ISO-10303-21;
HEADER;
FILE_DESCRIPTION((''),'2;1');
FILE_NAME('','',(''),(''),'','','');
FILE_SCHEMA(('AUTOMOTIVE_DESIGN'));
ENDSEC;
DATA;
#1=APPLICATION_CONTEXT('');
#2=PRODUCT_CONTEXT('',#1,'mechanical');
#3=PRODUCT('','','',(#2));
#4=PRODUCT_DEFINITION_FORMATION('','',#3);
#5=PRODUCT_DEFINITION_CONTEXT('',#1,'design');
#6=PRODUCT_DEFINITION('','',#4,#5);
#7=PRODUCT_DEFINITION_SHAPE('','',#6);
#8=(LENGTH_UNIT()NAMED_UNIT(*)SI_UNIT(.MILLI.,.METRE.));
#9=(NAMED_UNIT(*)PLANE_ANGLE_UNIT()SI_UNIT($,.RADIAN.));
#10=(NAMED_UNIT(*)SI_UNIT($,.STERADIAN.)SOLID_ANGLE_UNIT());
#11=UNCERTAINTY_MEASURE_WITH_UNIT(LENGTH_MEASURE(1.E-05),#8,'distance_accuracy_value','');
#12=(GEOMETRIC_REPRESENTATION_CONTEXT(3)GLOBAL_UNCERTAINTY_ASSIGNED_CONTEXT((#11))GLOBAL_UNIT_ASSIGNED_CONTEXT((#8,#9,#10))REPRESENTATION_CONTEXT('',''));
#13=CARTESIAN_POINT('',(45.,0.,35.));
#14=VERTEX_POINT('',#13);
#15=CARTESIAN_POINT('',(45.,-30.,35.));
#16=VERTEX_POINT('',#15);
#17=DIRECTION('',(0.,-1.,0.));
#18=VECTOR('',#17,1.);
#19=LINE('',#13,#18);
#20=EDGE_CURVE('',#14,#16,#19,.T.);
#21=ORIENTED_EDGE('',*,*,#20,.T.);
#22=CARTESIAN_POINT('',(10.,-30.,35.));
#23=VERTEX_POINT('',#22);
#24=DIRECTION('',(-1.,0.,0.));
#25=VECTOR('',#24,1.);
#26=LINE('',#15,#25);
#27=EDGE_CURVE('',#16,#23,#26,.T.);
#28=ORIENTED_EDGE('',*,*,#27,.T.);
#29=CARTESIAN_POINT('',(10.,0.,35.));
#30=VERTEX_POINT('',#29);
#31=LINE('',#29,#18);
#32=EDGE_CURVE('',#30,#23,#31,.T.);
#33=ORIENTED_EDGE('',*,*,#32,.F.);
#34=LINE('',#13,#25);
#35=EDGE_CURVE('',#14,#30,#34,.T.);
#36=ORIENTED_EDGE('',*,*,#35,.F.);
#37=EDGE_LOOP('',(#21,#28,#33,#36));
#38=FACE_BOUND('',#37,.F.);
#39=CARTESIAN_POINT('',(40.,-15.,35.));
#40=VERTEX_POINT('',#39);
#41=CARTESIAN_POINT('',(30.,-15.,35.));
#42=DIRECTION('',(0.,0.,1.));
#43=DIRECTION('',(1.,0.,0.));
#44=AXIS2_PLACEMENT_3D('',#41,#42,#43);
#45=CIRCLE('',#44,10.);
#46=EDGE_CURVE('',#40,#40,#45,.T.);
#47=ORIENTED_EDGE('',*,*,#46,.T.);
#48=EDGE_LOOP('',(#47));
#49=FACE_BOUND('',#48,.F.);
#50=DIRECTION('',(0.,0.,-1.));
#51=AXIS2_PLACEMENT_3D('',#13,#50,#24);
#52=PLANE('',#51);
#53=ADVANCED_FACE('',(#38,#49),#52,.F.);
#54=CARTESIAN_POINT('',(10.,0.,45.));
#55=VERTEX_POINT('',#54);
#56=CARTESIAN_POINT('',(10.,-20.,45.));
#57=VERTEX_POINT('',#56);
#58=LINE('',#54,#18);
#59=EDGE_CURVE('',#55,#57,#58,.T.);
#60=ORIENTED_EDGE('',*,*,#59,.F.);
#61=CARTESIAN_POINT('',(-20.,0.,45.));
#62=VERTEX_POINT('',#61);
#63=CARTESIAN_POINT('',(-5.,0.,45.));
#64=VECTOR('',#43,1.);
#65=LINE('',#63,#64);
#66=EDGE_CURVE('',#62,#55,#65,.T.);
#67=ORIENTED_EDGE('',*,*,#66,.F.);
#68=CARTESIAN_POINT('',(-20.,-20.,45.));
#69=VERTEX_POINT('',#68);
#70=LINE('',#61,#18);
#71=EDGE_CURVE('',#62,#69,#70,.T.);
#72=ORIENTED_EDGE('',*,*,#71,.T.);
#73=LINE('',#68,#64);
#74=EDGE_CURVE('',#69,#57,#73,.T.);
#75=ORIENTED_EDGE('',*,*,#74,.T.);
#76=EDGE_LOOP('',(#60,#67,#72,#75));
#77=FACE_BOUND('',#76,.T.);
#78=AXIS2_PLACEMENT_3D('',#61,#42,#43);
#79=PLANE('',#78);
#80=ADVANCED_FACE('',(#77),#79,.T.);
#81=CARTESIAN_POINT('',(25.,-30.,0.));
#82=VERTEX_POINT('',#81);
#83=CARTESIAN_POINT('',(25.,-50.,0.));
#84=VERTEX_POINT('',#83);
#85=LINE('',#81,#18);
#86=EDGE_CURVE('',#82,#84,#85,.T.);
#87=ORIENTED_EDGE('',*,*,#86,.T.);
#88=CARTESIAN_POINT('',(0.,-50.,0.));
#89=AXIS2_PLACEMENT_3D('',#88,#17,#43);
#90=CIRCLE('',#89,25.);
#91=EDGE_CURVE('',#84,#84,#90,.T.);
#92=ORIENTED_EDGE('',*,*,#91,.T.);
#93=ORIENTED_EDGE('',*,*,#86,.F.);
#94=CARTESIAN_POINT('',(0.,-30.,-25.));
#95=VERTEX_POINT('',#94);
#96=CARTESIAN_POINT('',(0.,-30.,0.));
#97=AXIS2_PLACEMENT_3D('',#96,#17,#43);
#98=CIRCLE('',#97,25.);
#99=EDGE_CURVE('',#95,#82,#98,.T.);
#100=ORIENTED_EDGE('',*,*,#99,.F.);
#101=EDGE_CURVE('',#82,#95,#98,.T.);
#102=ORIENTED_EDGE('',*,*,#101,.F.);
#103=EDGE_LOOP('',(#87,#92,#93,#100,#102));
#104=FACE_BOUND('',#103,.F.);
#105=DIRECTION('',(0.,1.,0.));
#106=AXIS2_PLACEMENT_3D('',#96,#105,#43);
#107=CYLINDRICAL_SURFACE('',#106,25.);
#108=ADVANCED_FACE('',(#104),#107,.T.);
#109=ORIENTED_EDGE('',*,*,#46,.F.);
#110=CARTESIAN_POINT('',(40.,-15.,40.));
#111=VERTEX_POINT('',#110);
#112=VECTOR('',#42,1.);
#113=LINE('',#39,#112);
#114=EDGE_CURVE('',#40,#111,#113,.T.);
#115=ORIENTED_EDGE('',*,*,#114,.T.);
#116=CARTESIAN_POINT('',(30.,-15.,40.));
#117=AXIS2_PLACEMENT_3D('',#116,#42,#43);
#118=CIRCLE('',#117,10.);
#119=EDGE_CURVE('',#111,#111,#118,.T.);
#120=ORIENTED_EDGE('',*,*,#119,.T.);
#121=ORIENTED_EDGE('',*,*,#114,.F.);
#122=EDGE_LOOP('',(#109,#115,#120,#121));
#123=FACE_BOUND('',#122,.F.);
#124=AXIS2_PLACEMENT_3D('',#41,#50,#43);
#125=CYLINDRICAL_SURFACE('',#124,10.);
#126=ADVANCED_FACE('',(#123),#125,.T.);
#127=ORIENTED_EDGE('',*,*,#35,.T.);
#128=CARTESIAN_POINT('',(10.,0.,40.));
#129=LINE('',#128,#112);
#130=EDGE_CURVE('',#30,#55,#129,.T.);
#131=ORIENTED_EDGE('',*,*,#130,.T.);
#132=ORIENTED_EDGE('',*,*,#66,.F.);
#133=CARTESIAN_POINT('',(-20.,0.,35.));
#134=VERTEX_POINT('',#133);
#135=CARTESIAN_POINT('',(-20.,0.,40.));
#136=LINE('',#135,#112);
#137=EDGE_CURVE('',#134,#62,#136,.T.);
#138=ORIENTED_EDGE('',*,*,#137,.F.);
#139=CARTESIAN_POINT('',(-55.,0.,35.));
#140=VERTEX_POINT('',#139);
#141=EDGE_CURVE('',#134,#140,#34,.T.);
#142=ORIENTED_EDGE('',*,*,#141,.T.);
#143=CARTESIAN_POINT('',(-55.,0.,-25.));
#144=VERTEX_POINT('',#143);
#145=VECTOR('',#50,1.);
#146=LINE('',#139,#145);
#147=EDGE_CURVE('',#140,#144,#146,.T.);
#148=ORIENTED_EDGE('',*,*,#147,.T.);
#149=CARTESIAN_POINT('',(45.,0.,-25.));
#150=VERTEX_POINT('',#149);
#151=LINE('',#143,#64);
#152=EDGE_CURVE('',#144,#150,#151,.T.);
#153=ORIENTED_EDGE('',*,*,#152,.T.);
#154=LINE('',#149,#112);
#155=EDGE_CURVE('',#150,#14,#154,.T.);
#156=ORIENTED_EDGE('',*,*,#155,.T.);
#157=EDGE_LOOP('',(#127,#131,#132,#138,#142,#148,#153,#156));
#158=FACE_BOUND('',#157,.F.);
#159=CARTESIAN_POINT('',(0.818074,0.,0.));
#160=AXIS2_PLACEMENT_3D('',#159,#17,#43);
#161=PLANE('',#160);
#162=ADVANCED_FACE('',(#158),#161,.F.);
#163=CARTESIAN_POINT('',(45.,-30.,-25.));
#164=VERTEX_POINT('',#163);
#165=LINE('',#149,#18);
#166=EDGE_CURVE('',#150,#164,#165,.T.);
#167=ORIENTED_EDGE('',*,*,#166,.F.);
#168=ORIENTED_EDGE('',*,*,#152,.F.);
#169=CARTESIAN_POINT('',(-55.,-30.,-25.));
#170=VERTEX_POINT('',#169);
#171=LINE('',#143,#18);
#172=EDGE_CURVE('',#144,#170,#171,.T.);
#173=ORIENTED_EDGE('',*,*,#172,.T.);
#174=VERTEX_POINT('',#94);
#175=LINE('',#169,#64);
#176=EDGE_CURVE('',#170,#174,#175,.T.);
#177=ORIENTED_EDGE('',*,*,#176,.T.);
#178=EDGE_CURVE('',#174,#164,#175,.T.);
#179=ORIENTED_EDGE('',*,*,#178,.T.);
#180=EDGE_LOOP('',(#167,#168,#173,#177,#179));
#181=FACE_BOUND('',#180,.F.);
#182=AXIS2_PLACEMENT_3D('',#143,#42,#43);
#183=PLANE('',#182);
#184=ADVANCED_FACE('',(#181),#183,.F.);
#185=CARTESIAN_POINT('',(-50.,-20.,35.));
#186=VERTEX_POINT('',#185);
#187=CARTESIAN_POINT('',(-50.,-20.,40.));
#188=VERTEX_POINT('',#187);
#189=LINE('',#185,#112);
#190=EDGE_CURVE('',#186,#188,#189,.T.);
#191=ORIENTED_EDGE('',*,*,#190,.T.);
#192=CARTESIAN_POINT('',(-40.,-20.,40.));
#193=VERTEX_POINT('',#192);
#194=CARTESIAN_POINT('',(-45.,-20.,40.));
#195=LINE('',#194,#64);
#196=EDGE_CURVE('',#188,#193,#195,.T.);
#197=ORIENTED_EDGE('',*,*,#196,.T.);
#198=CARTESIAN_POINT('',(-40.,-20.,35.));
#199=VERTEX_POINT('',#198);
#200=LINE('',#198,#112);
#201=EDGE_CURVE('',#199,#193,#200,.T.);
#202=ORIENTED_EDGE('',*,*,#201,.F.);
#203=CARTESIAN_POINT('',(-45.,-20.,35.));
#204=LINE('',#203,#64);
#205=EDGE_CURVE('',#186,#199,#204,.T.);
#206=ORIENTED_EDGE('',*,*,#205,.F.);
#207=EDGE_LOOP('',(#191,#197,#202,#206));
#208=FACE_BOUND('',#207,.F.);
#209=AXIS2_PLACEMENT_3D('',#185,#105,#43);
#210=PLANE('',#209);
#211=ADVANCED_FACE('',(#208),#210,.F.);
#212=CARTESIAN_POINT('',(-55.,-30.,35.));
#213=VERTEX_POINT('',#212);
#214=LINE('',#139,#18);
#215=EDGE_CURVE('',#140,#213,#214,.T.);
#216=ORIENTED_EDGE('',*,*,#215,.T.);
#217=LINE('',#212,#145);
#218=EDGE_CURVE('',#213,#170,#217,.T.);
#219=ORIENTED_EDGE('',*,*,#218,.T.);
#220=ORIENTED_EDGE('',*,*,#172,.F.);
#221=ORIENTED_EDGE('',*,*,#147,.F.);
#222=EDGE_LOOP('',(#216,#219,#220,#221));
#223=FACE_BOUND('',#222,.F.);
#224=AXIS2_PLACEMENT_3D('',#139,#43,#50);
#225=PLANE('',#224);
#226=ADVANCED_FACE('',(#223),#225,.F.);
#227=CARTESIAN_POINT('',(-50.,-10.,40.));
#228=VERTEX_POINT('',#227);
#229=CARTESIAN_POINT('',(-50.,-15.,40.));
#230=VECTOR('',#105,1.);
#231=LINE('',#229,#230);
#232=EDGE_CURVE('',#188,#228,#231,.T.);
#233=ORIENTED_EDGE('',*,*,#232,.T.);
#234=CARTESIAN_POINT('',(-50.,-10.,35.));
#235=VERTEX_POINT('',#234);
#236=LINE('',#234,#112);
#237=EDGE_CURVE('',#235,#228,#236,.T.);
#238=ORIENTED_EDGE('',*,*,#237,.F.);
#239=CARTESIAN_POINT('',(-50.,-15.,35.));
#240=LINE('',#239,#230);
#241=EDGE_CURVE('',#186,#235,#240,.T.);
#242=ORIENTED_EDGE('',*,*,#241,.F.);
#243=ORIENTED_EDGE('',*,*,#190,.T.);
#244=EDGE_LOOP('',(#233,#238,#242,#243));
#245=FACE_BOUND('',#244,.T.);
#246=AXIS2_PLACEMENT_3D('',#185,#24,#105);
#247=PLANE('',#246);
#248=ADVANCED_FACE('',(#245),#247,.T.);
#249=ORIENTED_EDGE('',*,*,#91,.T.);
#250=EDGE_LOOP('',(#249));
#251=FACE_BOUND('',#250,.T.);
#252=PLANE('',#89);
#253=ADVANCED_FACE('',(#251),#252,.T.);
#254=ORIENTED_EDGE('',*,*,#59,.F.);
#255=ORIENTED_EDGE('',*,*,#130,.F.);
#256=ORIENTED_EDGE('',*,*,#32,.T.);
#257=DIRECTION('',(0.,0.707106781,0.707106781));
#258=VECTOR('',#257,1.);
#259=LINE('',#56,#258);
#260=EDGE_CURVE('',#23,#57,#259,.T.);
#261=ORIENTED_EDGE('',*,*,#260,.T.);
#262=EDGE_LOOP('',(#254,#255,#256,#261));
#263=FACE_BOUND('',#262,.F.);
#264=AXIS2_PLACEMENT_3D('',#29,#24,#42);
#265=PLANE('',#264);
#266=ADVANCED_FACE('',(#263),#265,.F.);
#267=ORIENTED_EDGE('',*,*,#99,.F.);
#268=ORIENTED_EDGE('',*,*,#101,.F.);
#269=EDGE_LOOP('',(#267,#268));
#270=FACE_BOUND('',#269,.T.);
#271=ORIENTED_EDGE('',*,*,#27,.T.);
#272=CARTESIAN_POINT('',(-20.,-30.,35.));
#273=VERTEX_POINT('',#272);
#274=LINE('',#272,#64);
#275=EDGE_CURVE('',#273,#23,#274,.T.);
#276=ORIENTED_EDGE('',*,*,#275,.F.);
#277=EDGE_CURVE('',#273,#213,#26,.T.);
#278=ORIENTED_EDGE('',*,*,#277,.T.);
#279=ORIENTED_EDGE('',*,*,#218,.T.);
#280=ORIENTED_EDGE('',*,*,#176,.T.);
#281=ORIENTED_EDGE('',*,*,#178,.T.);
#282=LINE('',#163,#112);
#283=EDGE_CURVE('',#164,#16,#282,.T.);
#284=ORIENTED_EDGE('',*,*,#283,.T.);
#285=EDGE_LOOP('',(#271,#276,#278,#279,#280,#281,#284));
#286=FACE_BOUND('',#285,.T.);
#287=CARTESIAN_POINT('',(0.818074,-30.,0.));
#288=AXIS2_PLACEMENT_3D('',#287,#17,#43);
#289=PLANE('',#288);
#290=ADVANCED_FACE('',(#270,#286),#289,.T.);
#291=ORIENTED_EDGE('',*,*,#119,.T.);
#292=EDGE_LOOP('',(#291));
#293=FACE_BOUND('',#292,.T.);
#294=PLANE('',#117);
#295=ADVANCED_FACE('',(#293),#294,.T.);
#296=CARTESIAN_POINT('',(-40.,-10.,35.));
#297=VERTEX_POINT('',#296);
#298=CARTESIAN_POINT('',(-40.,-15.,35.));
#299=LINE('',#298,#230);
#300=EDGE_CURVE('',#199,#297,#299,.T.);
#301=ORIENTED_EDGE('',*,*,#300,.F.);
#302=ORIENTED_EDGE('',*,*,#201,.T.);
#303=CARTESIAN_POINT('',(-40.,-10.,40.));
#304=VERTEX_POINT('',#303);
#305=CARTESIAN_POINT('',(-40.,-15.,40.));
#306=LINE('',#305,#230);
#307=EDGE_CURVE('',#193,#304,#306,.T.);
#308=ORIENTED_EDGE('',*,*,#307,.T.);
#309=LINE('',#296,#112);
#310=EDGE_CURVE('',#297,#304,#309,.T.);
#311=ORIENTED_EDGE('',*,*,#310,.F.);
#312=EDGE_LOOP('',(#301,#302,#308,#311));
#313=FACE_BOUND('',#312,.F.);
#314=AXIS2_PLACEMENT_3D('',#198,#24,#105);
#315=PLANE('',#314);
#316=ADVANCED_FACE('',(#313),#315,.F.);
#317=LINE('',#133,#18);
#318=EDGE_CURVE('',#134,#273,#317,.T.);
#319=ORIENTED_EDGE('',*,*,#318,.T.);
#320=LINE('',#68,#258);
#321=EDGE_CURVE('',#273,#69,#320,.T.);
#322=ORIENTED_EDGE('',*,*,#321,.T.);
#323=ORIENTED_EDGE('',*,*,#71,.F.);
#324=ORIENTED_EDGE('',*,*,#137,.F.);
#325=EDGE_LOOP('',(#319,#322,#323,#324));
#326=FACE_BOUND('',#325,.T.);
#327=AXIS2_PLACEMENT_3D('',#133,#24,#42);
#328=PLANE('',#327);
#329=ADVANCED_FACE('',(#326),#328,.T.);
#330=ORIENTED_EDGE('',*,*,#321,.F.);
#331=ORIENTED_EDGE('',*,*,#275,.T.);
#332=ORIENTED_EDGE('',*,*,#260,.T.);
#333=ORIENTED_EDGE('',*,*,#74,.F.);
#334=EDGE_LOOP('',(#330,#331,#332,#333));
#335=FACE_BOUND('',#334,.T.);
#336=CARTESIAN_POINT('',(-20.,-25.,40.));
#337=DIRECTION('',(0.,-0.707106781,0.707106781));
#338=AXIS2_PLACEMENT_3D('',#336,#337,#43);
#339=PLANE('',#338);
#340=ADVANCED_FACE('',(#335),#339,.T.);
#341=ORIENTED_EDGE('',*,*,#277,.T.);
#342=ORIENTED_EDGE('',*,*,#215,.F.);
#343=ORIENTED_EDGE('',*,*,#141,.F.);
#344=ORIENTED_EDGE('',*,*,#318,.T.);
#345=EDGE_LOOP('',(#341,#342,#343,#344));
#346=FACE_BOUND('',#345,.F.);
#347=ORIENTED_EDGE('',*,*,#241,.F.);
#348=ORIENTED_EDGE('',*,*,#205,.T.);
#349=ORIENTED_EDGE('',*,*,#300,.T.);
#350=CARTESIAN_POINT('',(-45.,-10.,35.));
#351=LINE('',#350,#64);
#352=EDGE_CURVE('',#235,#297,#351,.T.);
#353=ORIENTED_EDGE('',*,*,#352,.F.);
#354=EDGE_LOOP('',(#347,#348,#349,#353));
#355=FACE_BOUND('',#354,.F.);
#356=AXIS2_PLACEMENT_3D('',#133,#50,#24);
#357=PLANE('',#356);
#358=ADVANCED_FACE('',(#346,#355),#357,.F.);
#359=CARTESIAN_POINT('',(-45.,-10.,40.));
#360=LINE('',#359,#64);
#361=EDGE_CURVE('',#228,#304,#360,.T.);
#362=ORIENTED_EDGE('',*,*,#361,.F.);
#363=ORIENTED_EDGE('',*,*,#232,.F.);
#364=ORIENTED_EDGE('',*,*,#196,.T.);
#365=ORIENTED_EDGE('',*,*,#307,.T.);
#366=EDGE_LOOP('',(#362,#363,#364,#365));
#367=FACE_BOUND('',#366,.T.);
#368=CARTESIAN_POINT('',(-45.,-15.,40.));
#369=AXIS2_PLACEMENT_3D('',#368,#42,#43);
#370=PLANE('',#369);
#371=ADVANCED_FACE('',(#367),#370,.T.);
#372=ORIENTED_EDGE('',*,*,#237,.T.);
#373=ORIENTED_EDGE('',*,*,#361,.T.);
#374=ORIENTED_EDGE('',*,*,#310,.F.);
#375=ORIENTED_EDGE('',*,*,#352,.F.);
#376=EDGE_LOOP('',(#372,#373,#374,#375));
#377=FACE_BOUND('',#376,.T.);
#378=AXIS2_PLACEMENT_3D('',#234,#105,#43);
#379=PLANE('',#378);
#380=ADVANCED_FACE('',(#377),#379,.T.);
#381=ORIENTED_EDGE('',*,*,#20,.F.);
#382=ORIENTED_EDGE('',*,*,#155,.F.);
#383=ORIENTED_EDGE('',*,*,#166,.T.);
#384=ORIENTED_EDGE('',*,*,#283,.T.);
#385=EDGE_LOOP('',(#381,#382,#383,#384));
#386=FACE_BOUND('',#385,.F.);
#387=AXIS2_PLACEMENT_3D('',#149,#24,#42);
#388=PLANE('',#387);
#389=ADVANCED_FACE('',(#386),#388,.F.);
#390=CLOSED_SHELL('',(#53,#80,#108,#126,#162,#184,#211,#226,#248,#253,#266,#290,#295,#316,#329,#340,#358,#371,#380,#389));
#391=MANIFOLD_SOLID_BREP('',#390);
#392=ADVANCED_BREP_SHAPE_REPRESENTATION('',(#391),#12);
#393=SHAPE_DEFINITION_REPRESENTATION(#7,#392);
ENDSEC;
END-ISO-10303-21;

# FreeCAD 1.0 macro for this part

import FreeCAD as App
import Part
import Sketcher
from FreeCAD import Vector
Q = App.Units.Quantity


def edges_at(feature, points):
    """Names of the edges that pass closest to the given points."""
    edges = feature.Shape.Edges
    near = lambda p: min(range(len(edges)), key=lambda i: edges[i].distToShape(Part.Vertex(*p))[0])
    return sorted({f"Edge{near(p) + 1}" for p in points})

doc = App.newDocument("Part")
body = doc.addObject("PartDesign::Body", "Body")

# Sketch on XZ plane
sketch1 = body.newObject("Sketcher::SketchObject", "Sketch")
sketch1.AttachmentSupport = (doc.getObject("XZ_Plane"), [""])
sketch1.MapMode = "FlatFace"
sketch1.addGeometry([
    Part.LineSegment(Vector(45, -25, 0), Vector(45, 35, 0)),  # 0
    Part.LineSegment(Vector(45, 35, 0), Vector(10, 35, 0)),  # 1
    Part.LineSegment(Vector(10, 35, 0), Vector(10, 45, 0)),  # 2
    Part.LineSegment(Vector(10, 45, 0), Vector(-20, 45, 0)),  # 3
    Part.LineSegment(Vector(-20, 45, 0), Vector(-20, 35, 0)),  # 4
    Part.LineSegment(Vector(-20, 35, 0), Vector(-55, 35, 0)),  # 5
    Part.LineSegment(Vector(-55, 35, 0), Vector(-55, -25, 0)),  # 6
    Part.LineSegment(Vector(-55, -25, 0), Vector(45, -25, 0)),  # 7
], False)
sketch1.addConstraint([
    Sketcher.Constraint("Coincident", 0, 2, 1, 1),
    Sketcher.Constraint("Coincident", 1, 2, 2, 1),
    Sketcher.Constraint("Coincident", 2, 2, 3, 1),
    Sketcher.Constraint("Coincident", 3, 2, 4, 1),
    Sketcher.Constraint("Coincident", 4, 2, 5, 1),
    Sketcher.Constraint("Coincident", 5, 2, 6, 1),
    Sketcher.Constraint("Coincident", 6, 2, 7, 1),
    Sketcher.Constraint("Coincident", 7, 2, 0, 1),
    Sketcher.Constraint("Vertical", 0),
    Sketcher.Constraint("Horizontal", 1),
    Sketcher.Constraint("Vertical", 2),
    Sketcher.Constraint("Horizontal", 3),
    Sketcher.Constraint("Vertical", 4),
    Sketcher.Constraint("Horizontal", 5),
    Sketcher.Constraint("Vertical", 6),
    Sketcher.Constraint("Horizontal", 7),
    Sketcher.Constraint("Horizontal", 1, 2, 4, 2),
    Sketcher.Constraint("Equal", 1, 5),
    Sketcher.Constraint("DistanceX", 1, 2, 1, 1, Q("35 mm")),
    Sketcher.Constraint("DistanceX", 3, 2, 3, 1, Q("30 mm")),
    Sketcher.Constraint("DistanceY", 0, 1, 0, 2, Q("60 mm")),
    Sketcher.Constraint("DistanceY", 2, 1, 2, 2, Q("10 mm")),
    Sketcher.Constraint("DistanceX", -1, 1, 0, 2, Q("45 mm")),
    Sketcher.Constraint("DistanceY", -1, 1, 0, 2, Q("35 mm")),
])
pad1 = body.newObject("PartDesign::Pad", "Pad")
pad1.Profile = sketch1
pad1.Length = 30

# Sketch on XZ plane
sketch2 = body.newObject("Sketcher::SketchObject", "Sketch001")
sketch2.AttachmentSupport = (doc.getObject("XZ_Plane"), [""])
sketch2.MapMode = "FlatFace"
sketch2.AttachmentOffset = App.Placement(Vector(0, 0, 30), App.Rotation())
sketch2.addGeometry(Part.Circle(Vector(0, 0, 0), Vector(0, 0, 1), 25), False)
sketch2.addConstraint([
    Sketcher.Constraint("Coincident", 0, 3, -1, 1),
    Sketcher.Constraint("Diameter", 0, Q("50 mm")),
])
pad2 = body.newObject("PartDesign::Pad", "Pad001")
pad2.Profile = sketch2
pad2.Length = 20

# Sketch on XY plane
sketch3 = body.newObject("Sketcher::SketchObject", "Sketch002")
sketch3.AttachmentSupport = (doc.getObject("XY_Plane"), [""])
sketch3.MapMode = "FlatFace"
sketch3.AttachmentOffset = App.Placement(Vector(0, 0, 35), App.Rotation())
sketch3.addGeometry([
    Part.LineSegment(Vector(-50, -10, 0), Vector(-50, -20, 0)),  # 0
    Part.LineSegment(Vector(-50, -20, 0), Vector(-40, -20, 0)),  # 1
    Part.LineSegment(Vector(-40, -20, 0), Vector(-40, -10, 0)),  # 2
    Part.LineSegment(Vector(-40, -10, 0), Vector(-50, -10, 0)),  # 3
    Part.Circle(Vector(30, -15, 0), Vector(0, 0, 1), 10),  # 4
], False)
sketch3.addConstraint([
    Sketcher.Constraint("Coincident", 0, 2, 1, 1),
    Sketcher.Constraint("Coincident", 1, 2, 2, 1),
    Sketcher.Constraint("Coincident", 2, 2, 3, 1),
    Sketcher.Constraint("Coincident", 3, 2, 0, 1),
    Sketcher.Constraint("Vertical", 0),
    Sketcher.Constraint("Horizontal", 1),
    Sketcher.Constraint("Vertical", 2),
    Sketcher.Constraint("Horizontal", 3),
    Sketcher.Constraint("Equal", 3, 0),
    Sketcher.Constraint("Diameter", 4, Q("20 mm")),
    Sketcher.Constraint("DistanceX", 1, 1, 1, 2, Q("10 mm")),
    Sketcher.Constraint("DistanceX", -1, 1, 4, 3, Q("30 mm")),
    Sketcher.Constraint("DistanceY", 4, 3, -1, 1, Q("15 mm")),
    Sketcher.Constraint("DistanceX", 0, 2, -1, 1, Q("50 mm")),
    Sketcher.Constraint("DistanceY", 0, 2, -1, 1, Q("20 mm")),
])
pad3 = body.newObject("PartDesign::Pad", "Pad002")
pad3.Profile = sketch3
pad3.Length = 5
doc.recompute()

chamfer = body.newObject("PartDesign::Chamfer", "Chamfer")
chamfer.Base = (pad3, edges_at(pad3, [(-5, -30, 45)]))
chamfer.ChamferType = "Two distances"
chamfer.Size = 10
chamfer.Size2 = 10

doc.recompute()
